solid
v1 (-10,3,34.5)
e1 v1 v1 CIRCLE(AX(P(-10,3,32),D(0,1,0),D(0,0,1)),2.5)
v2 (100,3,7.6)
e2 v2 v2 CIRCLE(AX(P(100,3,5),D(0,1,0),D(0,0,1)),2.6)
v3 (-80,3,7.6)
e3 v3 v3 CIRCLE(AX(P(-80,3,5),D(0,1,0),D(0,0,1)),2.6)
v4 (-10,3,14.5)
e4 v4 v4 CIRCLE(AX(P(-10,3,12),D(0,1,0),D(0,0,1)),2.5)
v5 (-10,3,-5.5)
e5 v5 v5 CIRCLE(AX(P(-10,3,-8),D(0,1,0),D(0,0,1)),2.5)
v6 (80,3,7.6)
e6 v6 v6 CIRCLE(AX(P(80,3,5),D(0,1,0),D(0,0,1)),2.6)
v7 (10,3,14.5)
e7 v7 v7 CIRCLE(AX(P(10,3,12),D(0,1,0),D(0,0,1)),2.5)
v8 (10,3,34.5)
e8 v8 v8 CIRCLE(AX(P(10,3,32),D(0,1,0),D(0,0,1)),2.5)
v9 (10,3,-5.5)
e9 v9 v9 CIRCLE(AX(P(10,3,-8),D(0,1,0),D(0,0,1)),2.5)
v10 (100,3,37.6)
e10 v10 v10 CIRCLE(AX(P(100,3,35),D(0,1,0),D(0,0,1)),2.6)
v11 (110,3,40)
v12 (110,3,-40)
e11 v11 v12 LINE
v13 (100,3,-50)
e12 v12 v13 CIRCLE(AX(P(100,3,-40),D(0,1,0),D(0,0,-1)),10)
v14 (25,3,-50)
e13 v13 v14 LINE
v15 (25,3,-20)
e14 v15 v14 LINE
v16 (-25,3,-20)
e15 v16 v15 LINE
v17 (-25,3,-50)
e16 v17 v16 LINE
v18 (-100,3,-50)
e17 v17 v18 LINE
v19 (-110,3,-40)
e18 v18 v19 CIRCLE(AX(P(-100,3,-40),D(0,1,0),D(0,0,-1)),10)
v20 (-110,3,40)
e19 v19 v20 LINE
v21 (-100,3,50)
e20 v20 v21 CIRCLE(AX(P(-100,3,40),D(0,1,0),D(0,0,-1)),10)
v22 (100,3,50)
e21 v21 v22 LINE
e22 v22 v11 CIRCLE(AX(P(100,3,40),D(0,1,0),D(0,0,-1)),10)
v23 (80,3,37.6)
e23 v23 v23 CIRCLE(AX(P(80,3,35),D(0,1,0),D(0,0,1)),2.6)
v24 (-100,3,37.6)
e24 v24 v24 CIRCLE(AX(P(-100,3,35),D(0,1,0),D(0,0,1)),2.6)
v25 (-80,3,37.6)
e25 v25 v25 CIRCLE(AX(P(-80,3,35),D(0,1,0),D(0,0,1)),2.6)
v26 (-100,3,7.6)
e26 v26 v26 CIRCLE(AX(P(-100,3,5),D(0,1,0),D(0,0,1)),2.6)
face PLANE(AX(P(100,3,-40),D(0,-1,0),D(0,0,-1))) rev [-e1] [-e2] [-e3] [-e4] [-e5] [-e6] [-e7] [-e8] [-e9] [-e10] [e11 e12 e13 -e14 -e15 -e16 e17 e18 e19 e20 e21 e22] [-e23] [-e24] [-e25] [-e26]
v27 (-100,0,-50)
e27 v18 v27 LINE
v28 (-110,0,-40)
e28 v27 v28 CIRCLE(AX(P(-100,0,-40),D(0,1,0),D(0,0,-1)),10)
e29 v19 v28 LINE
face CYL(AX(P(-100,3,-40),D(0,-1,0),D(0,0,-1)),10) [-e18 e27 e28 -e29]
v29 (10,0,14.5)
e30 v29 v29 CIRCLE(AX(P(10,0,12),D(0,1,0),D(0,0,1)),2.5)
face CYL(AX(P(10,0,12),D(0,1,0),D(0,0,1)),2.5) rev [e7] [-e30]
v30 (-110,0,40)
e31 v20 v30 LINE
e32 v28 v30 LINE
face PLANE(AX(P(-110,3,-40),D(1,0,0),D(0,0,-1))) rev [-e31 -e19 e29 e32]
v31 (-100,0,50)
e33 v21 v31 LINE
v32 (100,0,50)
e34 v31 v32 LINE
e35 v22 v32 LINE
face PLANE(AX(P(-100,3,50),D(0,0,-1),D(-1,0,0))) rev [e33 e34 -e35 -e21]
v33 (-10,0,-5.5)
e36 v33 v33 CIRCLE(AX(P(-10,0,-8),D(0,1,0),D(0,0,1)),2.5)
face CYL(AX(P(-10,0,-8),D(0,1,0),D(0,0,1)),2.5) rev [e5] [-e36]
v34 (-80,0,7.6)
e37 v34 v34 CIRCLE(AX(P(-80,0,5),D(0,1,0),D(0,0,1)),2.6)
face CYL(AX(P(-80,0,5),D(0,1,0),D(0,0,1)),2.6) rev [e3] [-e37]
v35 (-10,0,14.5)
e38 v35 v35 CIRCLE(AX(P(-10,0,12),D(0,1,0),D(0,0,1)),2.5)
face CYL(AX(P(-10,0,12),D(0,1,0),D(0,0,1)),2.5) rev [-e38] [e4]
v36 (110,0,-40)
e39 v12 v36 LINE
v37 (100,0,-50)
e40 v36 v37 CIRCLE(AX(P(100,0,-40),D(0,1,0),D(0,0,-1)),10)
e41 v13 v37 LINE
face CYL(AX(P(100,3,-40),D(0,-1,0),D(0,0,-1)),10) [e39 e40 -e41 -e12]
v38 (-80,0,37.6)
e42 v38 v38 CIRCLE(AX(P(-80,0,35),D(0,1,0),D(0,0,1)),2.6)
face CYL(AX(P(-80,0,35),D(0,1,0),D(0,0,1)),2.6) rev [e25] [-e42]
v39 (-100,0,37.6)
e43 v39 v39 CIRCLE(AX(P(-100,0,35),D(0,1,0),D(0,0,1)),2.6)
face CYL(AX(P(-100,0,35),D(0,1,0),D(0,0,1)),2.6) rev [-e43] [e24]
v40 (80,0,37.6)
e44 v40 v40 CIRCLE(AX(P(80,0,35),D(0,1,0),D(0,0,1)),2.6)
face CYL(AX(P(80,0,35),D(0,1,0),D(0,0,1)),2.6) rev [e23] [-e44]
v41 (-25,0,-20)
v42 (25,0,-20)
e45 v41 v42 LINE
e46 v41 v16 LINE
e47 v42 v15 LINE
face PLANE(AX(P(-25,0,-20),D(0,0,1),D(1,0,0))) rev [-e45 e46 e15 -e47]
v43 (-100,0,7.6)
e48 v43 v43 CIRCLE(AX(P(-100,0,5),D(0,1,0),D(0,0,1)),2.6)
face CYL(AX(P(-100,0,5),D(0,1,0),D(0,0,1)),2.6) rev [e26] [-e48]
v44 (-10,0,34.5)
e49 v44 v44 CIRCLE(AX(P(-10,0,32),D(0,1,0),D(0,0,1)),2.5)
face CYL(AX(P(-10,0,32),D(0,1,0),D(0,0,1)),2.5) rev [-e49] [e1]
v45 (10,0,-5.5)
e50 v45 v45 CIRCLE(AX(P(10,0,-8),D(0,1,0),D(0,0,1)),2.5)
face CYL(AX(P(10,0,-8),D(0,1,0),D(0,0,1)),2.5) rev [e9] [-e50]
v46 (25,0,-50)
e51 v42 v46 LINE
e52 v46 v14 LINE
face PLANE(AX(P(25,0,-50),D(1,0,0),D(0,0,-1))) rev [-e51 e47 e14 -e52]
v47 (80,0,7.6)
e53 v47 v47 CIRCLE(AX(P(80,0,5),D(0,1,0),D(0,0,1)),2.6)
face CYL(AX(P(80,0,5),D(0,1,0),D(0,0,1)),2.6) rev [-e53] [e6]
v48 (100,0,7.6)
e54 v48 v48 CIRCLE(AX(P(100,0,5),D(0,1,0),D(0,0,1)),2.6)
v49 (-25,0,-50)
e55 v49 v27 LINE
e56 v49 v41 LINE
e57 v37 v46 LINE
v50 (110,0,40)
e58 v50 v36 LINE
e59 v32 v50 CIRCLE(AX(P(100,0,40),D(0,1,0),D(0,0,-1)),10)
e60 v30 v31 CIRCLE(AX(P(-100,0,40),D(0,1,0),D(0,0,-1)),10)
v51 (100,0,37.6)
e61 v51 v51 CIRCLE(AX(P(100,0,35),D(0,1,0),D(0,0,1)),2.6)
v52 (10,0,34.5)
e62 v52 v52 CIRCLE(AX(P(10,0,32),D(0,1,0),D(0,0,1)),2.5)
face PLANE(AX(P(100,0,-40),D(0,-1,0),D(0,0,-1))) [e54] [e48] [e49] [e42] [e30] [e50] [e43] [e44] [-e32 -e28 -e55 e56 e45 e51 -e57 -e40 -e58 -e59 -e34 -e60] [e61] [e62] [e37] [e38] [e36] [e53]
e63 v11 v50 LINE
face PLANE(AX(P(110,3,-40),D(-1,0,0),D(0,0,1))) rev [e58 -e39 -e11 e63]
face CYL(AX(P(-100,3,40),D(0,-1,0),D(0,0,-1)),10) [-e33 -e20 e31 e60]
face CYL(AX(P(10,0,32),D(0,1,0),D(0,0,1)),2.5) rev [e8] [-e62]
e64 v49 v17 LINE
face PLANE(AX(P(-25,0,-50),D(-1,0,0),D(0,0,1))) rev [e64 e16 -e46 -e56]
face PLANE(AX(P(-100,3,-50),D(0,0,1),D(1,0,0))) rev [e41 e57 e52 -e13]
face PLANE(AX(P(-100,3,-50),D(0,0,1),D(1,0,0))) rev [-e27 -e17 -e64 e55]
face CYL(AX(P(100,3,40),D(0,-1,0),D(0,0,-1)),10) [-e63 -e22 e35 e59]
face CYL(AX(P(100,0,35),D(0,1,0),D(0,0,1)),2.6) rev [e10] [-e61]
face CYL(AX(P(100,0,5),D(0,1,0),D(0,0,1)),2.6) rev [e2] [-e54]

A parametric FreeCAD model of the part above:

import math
import FreeCAD as App
import Part
import Sketcher

V = App.Vector

doc = App.newDocument("Part")
body = doc.addObject("PartDesign::Body", "Body")

sketch1 = body.newObject("Sketcher::SketchObject", "Sketch")
sketch1.AttachmentSupport = (doc.getObject("XZ_Plane"), [""])
sketch1.MapMode = "FlatFace"
sketch1.addGeometry([
    Part.LineSegment(V(100, -50, 0), V(-100, -50, 0)),
    Part.ArcOfCircle(Part.Circle(V(-100, -40, 0), V(0, 0, 1), 10), math.radians(180), math.radians(270)),
    Part.LineSegment(V(-110, -40, 0), V(-110, 40, 0)),
    Part.ArcOfCircle(Part.Circle(V(-100, 40, 0), V(0, 0, 1), 10), math.radians(90), math.radians(180)),
    Part.LineSegment(V(-100, 50, 0), V(100, 50, 0)),
    Part.ArcOfCircle(Part.Circle(V(100, 40, 0), V(0, 0, 1), 10), math.radians(0), math.radians(90)),
    Part.LineSegment(V(110, 40, 0), V(110, -40, 0)),
    Part.ArcOfCircle(Part.Circle(V(100, -40, 0), V(0, 0, 1), 10), math.radians(-90), math.radians(0)),
], False)
sketch1.addConstraint([
    Sketcher.Constraint("Tangent", 0, 2, 1, 2),
    Sketcher.Constraint("Tangent", 1, 1, 2, 1),
    Sketcher.Constraint("Tangent", 2, 2, 3, 2),
    Sketcher.Constraint("Tangent", 3, 1, 4, 1),
    Sketcher.Constraint("Tangent", 4, 2, 5, 2),
    Sketcher.Constraint("Tangent", 5, 1, 6, 1),
    Sketcher.Constraint("Tangent", 6, 2, 7, 2),
    Sketcher.Constraint("Tangent", 7, 1, 0, 1),
    Sketcher.Constraint("Horizontal", 0),
    Sketcher.Constraint("Vertical", 2),
    Sketcher.Constraint("Horizontal", 4),
    Sketcher.Constraint("Vertical", 6),
    Sketcher.Constraint("Equal", 1, 3),
    Sketcher.Constraint("Equal", 3, 5),
    Sketcher.Constraint("Equal", 5, 7),
    Sketcher.Constraint("Symmetric", 1, 3, 5, 3, -1, 1),
    Sketcher.Constraint("Radius", 1, 10.0),
    Sketcher.Constraint("DistanceX", 0, 2, 0, 1, 200.0),
    Sketcher.Constraint("DistanceY", 2, 1, 2, 2, 80.0),
])
pad1 = body.newObject("PartDesign::Pad", "Pad")
pad1.Profile = sketch1
pad1.Length = 3
pad1.Reversed = True

sketch2 = body.newObject("Sketcher::SketchObject", "Sketch001")
sketch2.AttachmentSupport = (doc.getObject("XZ_Plane"), [""])
sketch2.MapMode = "FlatFace"
sketch2.AttachmentOffset = App.Placement(V(0, 0, -3), App.Rotation())
sketch2.addGeometry([
    Part.LineSegment(V(-25, -50, 0), V(-25, -20, 0)),
    Part.LineSegment(V(-25, -20, 0), V(25, -20, 0)),
    Part.LineSegment(V(25, -20, 0), V(25, -50, 0)),
    Part.LineSegment(V(25, -50, 0), V(-25, -50, 0)),
], False)
sketch2.addConstraint([
    Sketcher.Constraint("Coincident", 0, 2, 1, 1),
    Sketcher.Constraint("Coincident", 1, 2, 2, 1),
    Sketcher.Constraint("Coincident", 2, 2, 3, 1),
    Sketcher.Constraint("Coincident", 3, 2, 0, 1),
    Sketcher.Constraint("Vertical", 0),
    Sketcher.Constraint("Horizontal", 1),
    Sketcher.Constraint("Vertical", 2),
    Sketcher.Constraint("Horizontal", 3),
    Sketcher.Constraint("DistanceX", 1, 1, 1, 2, 50.0),
    Sketcher.Constraint("DistanceY", 0, 1, 0, 2, 30.0),
    Sketcher.Constraint("DistanceX", 0, 2, -1, 1, 25.0),
    Sketcher.Constraint("DistanceY", 0, 2, -1, 1, 20.0),
])
pocket1 = body.newObject("PartDesign::Pocket", "Pocket")
pocket1.Profile = sketch2
pocket1.Type = "ThroughAll"
pocket1.Reversed = True

sketch3 = body.newObject("Sketcher::SketchObject", "Sketch002")
sketch3.AttachmentSupport = (doc.getObject("XZ_Plane"), [""])
sketch3.MapMode = "FlatFace"
sketch3.AttachmentOffset = App.Placement(V(0, 0, -3), App.Rotation())
sketch3.addGeometry([
    Part.Circle(V(10, -8, 0), V(0, 0, 1), 2.5),
    Part.Circle(V(10, 12, 0), V(0, 0, 1), 2.5),
    Part.Circle(V(10, 32, 0), V(0, 0, 1), 2.5),
    Part.Circle(V(-10, 32, 0), V(0, 0, 1), 2.5),
    Part.Circle(V(-10, 12, 0), V(0, 0, 1), 2.5),
    Part.Circle(V(-10, -8, 0), V(0, 0, 1), 2.5),
], False)
sketch3.addConstraint([
    Sketcher.Constraint("Equal", 0, 1),
    Sketcher.Constraint("Equal", 1, 2),
    Sketcher.Constraint("Equal", 2, 3),
    Sketcher.Constraint("Equal", 3, 4),
    Sketcher.Constraint("Equal", 4, 5),
    Sketcher.Constraint("Symmetric", 2, 3, 3, 3, -2),
    Sketcher.Constraint("Symmetric", 1, 3, 4, 3, -2),
    Sketcher.Constraint("Symmetric", 0, 3, 5, 3, -2),
    Sketcher.Constraint("Vertical", 0, 3, 1, 3),
    Sketcher.Constraint("Vertical", 1, 3, 2, 3),
    Sketcher.Constraint("Diameter", 0, 5.0),
    Sketcher.Constraint("DistanceX", -1, 1, 0, 3, 10.0),
    Sketcher.Constraint("DistanceY", 0, 3, -1, 1, 8.0),
    Sketcher.Constraint("DistanceY", -1, 1, 1, 3, 12.0),
    Sketcher.Constraint("DistanceY", -1, 1, 2, 3, 32.0),
])
pocket2 = body.newObject("PartDesign::Pocket", "Pocket001")
pocket2.Profile = sketch3
pocket2.Type = "ThroughAll"
pocket2.Reversed = True

sketch4 = body.newObject("Sketcher::SketchObject", "Sketch003")
sketch4.AttachmentSupport = (doc.getObject("XZ_Plane"), [""])
sketch4.MapMode = "FlatFace"
sketch4.AttachmentOffset = App.Placement(V(0, 0, -3), App.Rotation())
sketch4.addGeometry([
    Part.Circle(V(100, 35, 0), V(0, 0, 1), 2.6),
    Part.Circle(V(80, 35, 0), V(0, 0, 1), 2.6),
    Part.Circle(V(100, 5, 0), V(0, 0, 1), 2.6),
    Part.Circle(V(80, 5, 0), V(0, 0, 1), 2.6),
    Part.Circle(V(-100, 35, 0), V(0, 0, 1), 2.6),
    Part.Circle(V(-100, 5, 0), V(0, 0, 1), 2.6),
    Part.Circle(V(-80, 35, 0), V(0, 0, 1), 2.6),
    Part.Circle(V(-80, 5, 0), V(0, 0, 1), 2.6),
], False)
sketch4.addConstraint([
    Sketcher.Constraint("Equal", 0, 1),
    Sketcher.Constraint("Equal", 1, 2),
    Sketcher.Constraint("Equal", 2, 3),
    Sketcher.Constraint("Equal", 3, 4),
    Sketcher.Constraint("Equal", 4, 5),
    Sketcher.Constraint("Equal", 5, 6),
    Sketcher.Constraint("Equal", 6, 7),
    Sketcher.Constraint("Symmetric", 0, 3, 4, 3, -2),
    Sketcher.Constraint("Symmetric", 2, 3, 5, 3, -2),
    Sketcher.Constraint("Symmetric", 1, 3, 6, 3, -2),
    Sketcher.Constraint("Symmetric", 3, 3, 7, 3, -2),
    Sketcher.Constraint("Horizontal", 0, 3, 1, 3),
    Sketcher.Constraint("Horizontal", 2, 3, 3, 3),
    Sketcher.Constraint("Vertical", 0, 3, 2, 3),
    Sketcher.Constraint("Vertical", 1, 3, 3, 3),
    Sketcher.Constraint("Diameter", 0, 5.2),
    Sketcher.Constraint("DistanceX", -1, 1, 0, 3, 100.0),
    Sketcher.Constraint("DistanceY", -1, 1, 0, 3, 35.0),
    Sketcher.Constraint("DistanceX", -1, 1, 1, 3, 80.0),
    Sketcher.Constraint("DistanceY", -1, 1, 2, 3, 5.0),
])
pocket3 = body.newObject("PartDesign::Pocket", "Pocket002")
pocket3.Profile = sketch4
pocket3.Type = "ThroughAll"
pocket3.Reversed = True

doc.recompute()
